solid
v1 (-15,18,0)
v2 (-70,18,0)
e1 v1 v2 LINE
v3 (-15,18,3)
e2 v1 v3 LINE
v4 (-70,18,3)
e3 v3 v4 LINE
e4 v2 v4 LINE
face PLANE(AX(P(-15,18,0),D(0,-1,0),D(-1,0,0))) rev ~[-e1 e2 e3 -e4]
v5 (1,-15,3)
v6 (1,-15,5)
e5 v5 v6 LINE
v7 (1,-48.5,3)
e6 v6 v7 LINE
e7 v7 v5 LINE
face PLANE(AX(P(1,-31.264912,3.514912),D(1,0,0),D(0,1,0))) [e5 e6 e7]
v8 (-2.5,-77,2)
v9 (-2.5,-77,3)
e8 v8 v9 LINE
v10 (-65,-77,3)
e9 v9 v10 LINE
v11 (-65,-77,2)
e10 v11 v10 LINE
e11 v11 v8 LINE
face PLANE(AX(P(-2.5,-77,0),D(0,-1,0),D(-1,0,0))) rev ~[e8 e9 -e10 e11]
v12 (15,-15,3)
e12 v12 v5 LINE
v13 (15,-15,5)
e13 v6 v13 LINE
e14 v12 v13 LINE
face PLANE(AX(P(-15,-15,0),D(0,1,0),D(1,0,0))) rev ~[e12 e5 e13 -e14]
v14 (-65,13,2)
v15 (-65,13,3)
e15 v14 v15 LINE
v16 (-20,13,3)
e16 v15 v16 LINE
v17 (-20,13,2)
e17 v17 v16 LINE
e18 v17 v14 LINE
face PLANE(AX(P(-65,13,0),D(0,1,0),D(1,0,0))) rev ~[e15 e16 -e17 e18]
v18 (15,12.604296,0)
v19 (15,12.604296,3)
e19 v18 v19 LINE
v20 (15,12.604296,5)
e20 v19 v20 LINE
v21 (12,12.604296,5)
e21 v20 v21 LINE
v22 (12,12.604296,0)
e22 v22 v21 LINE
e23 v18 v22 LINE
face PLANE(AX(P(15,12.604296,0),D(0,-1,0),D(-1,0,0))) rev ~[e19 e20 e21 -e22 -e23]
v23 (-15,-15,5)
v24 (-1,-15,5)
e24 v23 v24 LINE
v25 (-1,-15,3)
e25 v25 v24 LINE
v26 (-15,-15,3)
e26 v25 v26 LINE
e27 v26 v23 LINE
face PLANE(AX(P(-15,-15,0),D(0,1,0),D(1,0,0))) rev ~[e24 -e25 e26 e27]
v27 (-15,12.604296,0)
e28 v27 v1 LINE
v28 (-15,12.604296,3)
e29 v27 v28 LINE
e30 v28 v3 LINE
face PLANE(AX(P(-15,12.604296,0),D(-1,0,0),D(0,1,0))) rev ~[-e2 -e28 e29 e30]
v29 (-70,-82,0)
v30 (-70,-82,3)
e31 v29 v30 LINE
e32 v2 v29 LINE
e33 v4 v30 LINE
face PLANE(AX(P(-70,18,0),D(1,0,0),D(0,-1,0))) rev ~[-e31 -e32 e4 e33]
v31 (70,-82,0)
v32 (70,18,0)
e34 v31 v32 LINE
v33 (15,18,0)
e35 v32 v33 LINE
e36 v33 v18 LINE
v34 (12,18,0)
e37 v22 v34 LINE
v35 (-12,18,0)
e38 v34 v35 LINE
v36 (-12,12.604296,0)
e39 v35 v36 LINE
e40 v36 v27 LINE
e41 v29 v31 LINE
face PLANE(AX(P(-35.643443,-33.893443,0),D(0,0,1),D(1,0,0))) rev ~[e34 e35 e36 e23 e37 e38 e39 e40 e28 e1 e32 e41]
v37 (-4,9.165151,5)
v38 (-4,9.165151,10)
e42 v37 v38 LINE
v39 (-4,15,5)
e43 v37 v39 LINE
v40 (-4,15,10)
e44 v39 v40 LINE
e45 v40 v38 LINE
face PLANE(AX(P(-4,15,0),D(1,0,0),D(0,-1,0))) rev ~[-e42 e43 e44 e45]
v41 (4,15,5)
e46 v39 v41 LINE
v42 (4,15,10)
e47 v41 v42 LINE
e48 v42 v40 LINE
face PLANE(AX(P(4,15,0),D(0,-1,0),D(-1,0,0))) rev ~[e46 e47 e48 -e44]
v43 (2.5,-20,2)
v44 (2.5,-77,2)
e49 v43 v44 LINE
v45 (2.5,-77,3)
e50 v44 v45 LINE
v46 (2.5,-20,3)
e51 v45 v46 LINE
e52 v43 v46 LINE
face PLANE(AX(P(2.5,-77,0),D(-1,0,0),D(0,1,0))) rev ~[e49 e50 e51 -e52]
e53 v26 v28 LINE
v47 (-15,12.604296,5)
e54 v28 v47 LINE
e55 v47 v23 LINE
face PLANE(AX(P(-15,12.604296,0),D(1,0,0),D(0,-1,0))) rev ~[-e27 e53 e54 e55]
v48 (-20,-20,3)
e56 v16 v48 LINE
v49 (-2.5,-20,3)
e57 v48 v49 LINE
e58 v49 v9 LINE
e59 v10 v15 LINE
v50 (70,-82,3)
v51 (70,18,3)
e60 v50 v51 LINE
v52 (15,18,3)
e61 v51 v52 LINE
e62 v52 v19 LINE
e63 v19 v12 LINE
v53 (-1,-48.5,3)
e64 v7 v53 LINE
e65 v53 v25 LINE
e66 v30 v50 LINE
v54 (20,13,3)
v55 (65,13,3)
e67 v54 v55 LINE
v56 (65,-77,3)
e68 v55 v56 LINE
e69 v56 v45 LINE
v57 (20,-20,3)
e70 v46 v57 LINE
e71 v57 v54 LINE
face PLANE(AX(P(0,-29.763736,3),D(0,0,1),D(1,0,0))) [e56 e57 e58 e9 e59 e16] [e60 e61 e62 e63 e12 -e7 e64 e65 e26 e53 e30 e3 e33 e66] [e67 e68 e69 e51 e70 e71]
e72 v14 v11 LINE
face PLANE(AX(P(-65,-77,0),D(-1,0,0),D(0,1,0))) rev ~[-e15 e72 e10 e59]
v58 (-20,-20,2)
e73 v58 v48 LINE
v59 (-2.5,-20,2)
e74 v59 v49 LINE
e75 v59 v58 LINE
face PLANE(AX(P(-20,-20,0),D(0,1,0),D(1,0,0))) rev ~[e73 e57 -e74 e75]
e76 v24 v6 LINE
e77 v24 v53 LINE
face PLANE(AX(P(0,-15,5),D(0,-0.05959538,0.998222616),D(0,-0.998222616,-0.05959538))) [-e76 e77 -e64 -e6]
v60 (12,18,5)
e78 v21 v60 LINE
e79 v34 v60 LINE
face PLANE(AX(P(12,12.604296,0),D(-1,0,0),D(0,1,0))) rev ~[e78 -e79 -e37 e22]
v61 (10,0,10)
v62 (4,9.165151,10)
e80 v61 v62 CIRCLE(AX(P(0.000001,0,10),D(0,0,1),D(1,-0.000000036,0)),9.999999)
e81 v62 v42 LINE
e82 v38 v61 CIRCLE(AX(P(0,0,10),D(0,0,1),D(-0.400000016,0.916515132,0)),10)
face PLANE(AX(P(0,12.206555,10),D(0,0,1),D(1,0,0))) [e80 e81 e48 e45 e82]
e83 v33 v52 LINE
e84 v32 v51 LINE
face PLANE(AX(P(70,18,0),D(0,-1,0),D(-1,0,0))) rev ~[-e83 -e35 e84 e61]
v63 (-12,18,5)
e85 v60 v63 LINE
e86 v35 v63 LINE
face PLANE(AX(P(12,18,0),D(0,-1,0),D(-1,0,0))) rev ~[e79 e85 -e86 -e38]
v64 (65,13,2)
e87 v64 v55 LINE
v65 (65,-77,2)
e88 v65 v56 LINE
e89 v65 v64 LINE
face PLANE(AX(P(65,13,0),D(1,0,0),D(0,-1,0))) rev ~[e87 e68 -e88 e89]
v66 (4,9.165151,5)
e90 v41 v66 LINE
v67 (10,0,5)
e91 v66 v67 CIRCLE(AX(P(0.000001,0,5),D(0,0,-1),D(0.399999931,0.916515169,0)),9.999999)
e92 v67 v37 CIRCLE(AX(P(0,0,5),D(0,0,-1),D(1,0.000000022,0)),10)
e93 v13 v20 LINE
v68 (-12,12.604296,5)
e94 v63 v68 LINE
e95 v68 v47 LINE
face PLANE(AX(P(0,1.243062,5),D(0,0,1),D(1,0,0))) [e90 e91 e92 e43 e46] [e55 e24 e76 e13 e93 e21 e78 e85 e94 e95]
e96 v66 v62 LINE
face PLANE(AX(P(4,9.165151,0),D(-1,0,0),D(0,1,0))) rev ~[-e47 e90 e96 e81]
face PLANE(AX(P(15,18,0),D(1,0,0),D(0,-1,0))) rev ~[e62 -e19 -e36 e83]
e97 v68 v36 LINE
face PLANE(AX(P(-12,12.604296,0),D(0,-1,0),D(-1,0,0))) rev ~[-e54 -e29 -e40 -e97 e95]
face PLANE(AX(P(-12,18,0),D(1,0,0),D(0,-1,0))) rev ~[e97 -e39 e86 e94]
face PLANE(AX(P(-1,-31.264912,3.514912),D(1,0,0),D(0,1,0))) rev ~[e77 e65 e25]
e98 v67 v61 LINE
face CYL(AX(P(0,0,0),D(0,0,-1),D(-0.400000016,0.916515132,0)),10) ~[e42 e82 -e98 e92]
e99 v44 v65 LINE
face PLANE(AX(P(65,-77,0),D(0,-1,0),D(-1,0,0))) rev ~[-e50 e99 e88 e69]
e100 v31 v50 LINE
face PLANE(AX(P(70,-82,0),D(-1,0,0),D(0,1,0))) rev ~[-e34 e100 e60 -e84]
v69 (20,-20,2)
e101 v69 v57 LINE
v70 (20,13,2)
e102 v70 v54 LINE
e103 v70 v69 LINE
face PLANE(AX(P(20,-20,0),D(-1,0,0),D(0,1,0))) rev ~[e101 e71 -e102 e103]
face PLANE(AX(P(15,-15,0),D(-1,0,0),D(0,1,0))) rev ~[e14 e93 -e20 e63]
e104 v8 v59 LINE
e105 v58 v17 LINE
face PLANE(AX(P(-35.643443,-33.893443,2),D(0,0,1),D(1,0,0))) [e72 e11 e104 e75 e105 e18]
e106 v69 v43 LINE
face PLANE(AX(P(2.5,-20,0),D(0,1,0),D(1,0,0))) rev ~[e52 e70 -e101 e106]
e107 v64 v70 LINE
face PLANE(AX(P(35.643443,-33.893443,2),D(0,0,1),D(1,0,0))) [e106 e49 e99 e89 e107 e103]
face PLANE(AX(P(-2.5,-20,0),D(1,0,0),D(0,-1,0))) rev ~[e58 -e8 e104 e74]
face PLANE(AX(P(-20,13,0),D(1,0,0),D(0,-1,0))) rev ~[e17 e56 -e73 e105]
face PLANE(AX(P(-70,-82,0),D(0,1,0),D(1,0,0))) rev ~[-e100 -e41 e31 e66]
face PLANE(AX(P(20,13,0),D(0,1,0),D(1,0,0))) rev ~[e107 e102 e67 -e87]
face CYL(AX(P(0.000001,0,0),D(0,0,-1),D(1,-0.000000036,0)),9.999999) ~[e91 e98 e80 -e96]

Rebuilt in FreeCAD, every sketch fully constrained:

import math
import FreeCAD as App
import Part
import Sketcher

V = App.Vector
Q = App.Units.Quantity

doc = App.newDocument("Part")
params = doc.addObject("Spreadsheet::Sheet", "Params")
for row, (alias, value) in enumerate([
    ("sketch1_radius", "9.999999 mm"),
    ("sketch1_width", "3 mm"),
    ("sketch1_width2", "24 mm"),
    ("sketch1_width3", "55 mm"),
    ("sketch1_width4", "45 mm"),
    ("pad1_length", "3 mm"),
    ("sketch2_radius", "9.999999 mm"),
    ("sketch2_width", "30 mm"),
    ("sketch2_width2", "3 mm"),
    ("sketch2_width3", "8 mm"),
    ("pad2_length", "5 mm"),
    ("sketch3_radius", "10 mm"),
    ("sketch3_width", "8 mm"),
    ("pad3_length", "10 mm"),
    ("sketch4_height", "2 mm"),
    ("sketch4_width", "33.5 mm"),
    ("pad4_length", "2 mm"),
    ("sketch5_width", "45 mm"),
    ("sketch5_height", "90 mm"),
    ("sketch5_height2", "57 mm"),
    ("sketch5_width2", "62.5 mm"),
    ("pad5_length", "2 mm"),
], start=1):
    params.set(f"A{row}", alias)
    params.set(f"B{row}", "=" + value)
    params.setAlias(f"B{row}", alias)

body = doc.addObject("PartDesign::Body", "Body")

sketch1 = doc.addObject("Sketcher::SketchObject", "Sketch")
body.addObject(sketch1)
sketch1.AttachmentSupport = (doc.XY_Plane, [""])
sketch1.MapMode = "FlatFace"
sketch1.addGeometry([
    Part.LineSegment(V(15, 18, 0), V(15, 12.6, 0)),
    Part.LineSegment(V(15, 12.6, 0), V(12, 12.6, 0)),
    Part.LineSegment(V(12, 12.6, 0), V(12, 18, 0)),
    Part.LineSegment(V(12, 18, 0), V(-12, 18, 0)),
    Part.LineSegment(V(-12, 18, 0), V(-12, 12.6, 0)),
    Part.LineSegment(V(-12, 12.6, 0), V(-15, 12.6, 0)),
    Part.LineSegment(V(-15, 12.6, 0), V(-15, 18, 0)),
    Part.LineSegment(V(-15, 18, 0), V(-70, 18, 0)),
    Part.LineSegment(V(-70, 18, 0), V(-70, -82, 0)),
    Part.LineSegment(V(-70, -82, 0), V(70, -82, 0)),
    Part.LineSegment(V(70, -82, 0), V(70, 18, 0)),
    Part.LineSegment(V(70, 18, 0), V(15, 18, 0)),
    Part.LineSegment(V(-2.5, -20, 0), V(-2.5, -77, 0)),
    Part.LineSegment(V(-2.5, -77, 0), V(-65, -77, 0)),
    Part.LineSegment(V(-65, -77, 0), V(-65, 13, 0)),
    Part.LineSegment(V(-65, 13, 0), V(-20, 13, 0)),
    Part.LineSegment(V(-20, 13, 0), V(-20, -20, 0)),
    Part.LineSegment(V(-20, -20, 0), V(-2.5, -20, 0)),
    Part.LineSegment(V(2.5, -77, 0), V(2.5, -20, 0)),
    Part.LineSegment(V(2.5, -20, 0), V(20, -20, 0)),
    Part.LineSegment(V(20, -20, 0), V(20, 13, 0)),
    Part.LineSegment(V(20, 13, 0), V(65, 13, 0)),
    Part.LineSegment(V(65, 13, 0), V(65, -77, 0)),
    Part.LineSegment(V(65, -77, 0), V(2.5, -77, 0)),
    Part.LineSegment(V(4, 15, 0), V(4, 9.2, 0)),
    Part.ArcOfCircle(Part.Circle(V(0, 0, 0), V(0, 0, 1), 10), math.radians(0), math.radians(66)),
    Part.ArcOfCircle(Part.Circle(V(0, 0, 0), V(0, 0, 1), 10), math.radians(114), math.radians(360)),
    Part.LineSegment(V(-4, 9.2, 0), V(-4, 15, 0)),
    Part.LineSegment(V(-4, 15, 0), V(4, 15, 0)),
], False)
sketch1.addConstraint([
    Sketcher.Constraint("Coincident", 0, 2, 1, 1),
    Sketcher.Constraint("Coincident", 1, 2, 2, 1),
    Sketcher.Constraint("Coincident", 2, 2, 3, 1),
    Sketcher.Constraint("Coincident", 3, 2, 4, 1),
    Sketcher.Constraint("Coincident", 4, 2, 5, 1),
    Sketcher.Constraint("Coincident", 5, 2, 6, 1),
    Sketcher.Constraint("Coincident", 6, 2, 7, 1),
    Sketcher.Constraint("Coincident", 7, 2, 8, 1),
    Sketcher.Constraint("Coincident", 8, 2, 9, 1),
    Sketcher.Constraint("Coincident", 9, 2, 10, 1),
    Sketcher.Constraint("Coincident", 10, 2, 11, 1),
    Sketcher.Constraint("Coincident", 11, 2, 0, 1),
    Sketcher.Constraint("Coincident", 12, 2, 13, 1),
    Sketcher.Constraint("Coincident", 13, 2, 14, 1),
    Sketcher.Constraint("Coincident", 14, 2, 15, 1),
    Sketcher.Constraint("Coincident", 15, 2, 16, 1),
    Sketcher.Constraint("Coincident", 16, 2, 17, 1),
    Sketcher.Constraint("Coincident", 17, 2, 12, 1),
    Sketcher.Constraint("Coincident", 18, 2, 19, 1),
    Sketcher.Constraint("Coincident", 19, 2, 20, 1),
    Sketcher.Constraint("Coincident", 20, 2, 21, 1),
    Sketcher.Constraint("Coincident", 21, 2, 22, 1),
    Sketcher.Constraint("Coincident", 22, 2, 23, 1),
    Sketcher.Constraint("Coincident", 23, 2, 18, 1),
    Sketcher.Constraint("Coincident", 24, 2, 25, 2),
    Sketcher.Constraint("Tangent", 25, 1, 26, 2),
    Sketcher.Constraint("Coincident", 26, 1, 27, 1),
    Sketcher.Constraint("Coincident", 27, 2, 28, 1),
    Sketcher.Constraint("Coincident", 28, 2, 24, 1),
    Sketcher.Constraint("Vertical", 0),
    Sketcher.Constraint("Horizontal", 1),
    Sketcher.Constraint("Vertical", 2),
    Sketcher.Constraint("Horizontal", 3),
    Sketcher.Constraint("Vertical", 4),
    Sketcher.Constraint("Horizontal", 5),
    Sketcher.Constraint("Vertical", 6),
    Sketcher.Constraint("Horizontal", 7),
    Sketcher.Constraint("Vertical", 8),
    Sketcher.Constraint("Horizontal", 9),
    Sketcher.Constraint("Vertical", 10),
    Sketcher.Constraint("Horizontal", 11),
    Sketcher.Constraint("Vertical", 12),
    Sketcher.Constraint("Horizontal", 13),
    Sketcher.Constraint("Vertical", 14),
    Sketcher.Constraint("Horizontal", 15),
    Sketcher.Constraint("Vertical", 16),
    Sketcher.Constraint("Horizontal", 17),
    Sketcher.Constraint("Vertical", 18),
    Sketcher.Constraint("Horizontal", 19),
    Sketcher.Constraint("Vertical", 20),
    Sketcher.Constraint("Horizontal", 21),
    Sketcher.Constraint("Vertical", 22),
    Sketcher.Constraint("Horizontal", 23),
    Sketcher.Constraint("Vertical", 24),
    Sketcher.Constraint("Vertical", 27),
    Sketcher.Constraint("Horizontal", 28),
    Sketcher.Constraint("Coincident", 25, 3, -1, 1),
    Sketcher.Constraint("Equal", 25, 26),
    Sketcher.Constraint("Symmetric", 1, 2, 4, 2, -2),
    Sketcher.Constraint("Symmetric", 7, 2, 10, 2, -2),
    Sketcher.Constraint("Symmetric", 17, 2, 18, 2, -2),
    Sketcher.Constraint("Symmetric", 15, 2, 20, 2, -2),
    Sketcher.Constraint("Symmetric", 13, 2, 22, 2, -2),
    Sketcher.Constraint("PointOnObject", 25, 1, -1),
    Sketcher.Constraint("Horizontal", 3, 2, 6, 2),
    Sketcher.Constraint("Horizontal", 24, 2, 26, 1),
    Sketcher.Constraint("Equal", 1, 5),
    Sketcher.Constraint("Radius", 25, Q("9.999999 mm")),
    Sketcher.Constraint("DistanceX", 1, 2, 1, 1, Q("3 mm")),
    Sketcher.Constraint("DistanceX", 3, 2, 3, 1, Q("24 mm")),
    Sketcher.Constraint("DistanceX", 7, 2, 7, 1, Q("55 mm")),
    Sketcher.Constraint("DistanceX", 15, 1, 15, 2, Q("45 mm")),
    Sketcher.Constraint("DistanceX", 28, 1, 28, 2, Q("8 mm")),
    Sketcher.Constraint("DistanceY", 8, 2, 8, 1, Q("100 mm")),
    Sketcher.Constraint("DistanceY", 12, 2, 12, 1, Q("57 mm")),
    Sketcher.Constraint("DistanceY", 14, 1, 14, 2, Q("90 mm")),
    Sketcher.Constraint("DistanceX", 13, 2, 13, 1, Q("62.5 mm")),
    Sketcher.Constraint("DistanceY", -1, 1, 2, 2, Q("18 mm")),
    Sketcher.Constraint("DistanceY", 12, 2, -1, 1, Q("77 mm")),
    Sketcher.Constraint("DistanceX", 13, 2, -1, 1, Q("65 mm")),
    Sketcher.Constraint("DistanceY", -1, 1, 27, 2, Q("15 mm")),
    Sketcher.Constraint("DistanceY", 0, 2, 0, 1, Q("5.395704 mm")),
])
sketch1.setExpression("Constraints[67]", "Params.sketch1_radius")
sketch1.setExpression("Constraints[68]", "Params.sketch1_width")
sketch1.setExpression("Constraints[69]", "Params.sketch1_width2")
sketch1.setExpression("Constraints[70]", "Params.sketch1_width3")
sketch1.setExpression("Constraints[71]", "Params.sketch1_width4")
pad1 = doc.addObject("PartDesign::Pad", "Pad")
body.addObject(pad1)
pad1.Profile = sketch1
pad1.setExpression("Length", "Params.pad1_length")

sketch2 = doc.addObject("Sketcher::SketchObject", "Sketch001")
body.addObject(sketch2)
sketch2.AttachmentSupport = (doc.XY_Plane, [""])
sketch2.MapMode = "FlatFace"
sketch2.addGeometry([
    Part.LineSegment(V(-15, 12.6, 0), V(-15, -15, 0)),
    Part.LineSegment(V(-15, -15, 0), V(15, -15, 0)),
    Part.LineSegment(V(15, -15, 0), V(15, 12.6, 0)),
    Part.LineSegment(V(15, 12.6, 0), V(12, 12.6, 0)),
    Part.LineSegment(V(12, 12.6, 0), V(12, 18, 0)),
    Part.LineSegment(V(12, 18, 0), V(-12, 18, 0)),
    Part.LineSegment(V(-12, 18, 0), V(-12, 12.6, 0)),
    Part.LineSegment(V(-12, 12.6, 0), V(-15, 12.6, 0)),
    Part.LineSegment(V(4, 15, 0), V(4, 9.2, 0)),
    Part.ArcOfCircle(Part.Circle(V(0, 0, 0), V(0, 0, 1), 10), math.radians(0), math.radians(66)),
    Part.ArcOfCircle(Part.Circle(V(0, 0, 0), V(0, 0, 1), 10), math.radians(114), math.radians(360)),
    Part.LineSegment(V(-4, 9.2, 0), V(-4, 15, 0)),
    Part.LineSegment(V(-4, 15, 0), V(4, 15, 0)),
], False)
sketch2.addConstraint([
    Sketcher.Constraint("Coincident", 0, 2, 1, 1),
    Sketcher.Constraint("Coincident", 1, 2, 2, 1),
    Sketcher.Constraint("Coincident", 2, 2, 3, 1),
    Sketcher.Constraint("Coincident", 3, 2, 4, 1),
    Sketcher.Constraint("Coincident", 4, 2, 5, 1),
    Sketcher.Constraint("Coincident", 5, 2, 6, 1),
    Sketcher.Constraint("Coincident", 6, 2, 7, 1),
    Sketcher.Constraint("Coincident", 7, 2, 0, 1),
    Sketcher.Constraint("Coincident", 8, 2, 9, 2),
    Sketcher.Constraint("Tangent", 9, 1, 10, 2),
    Sketcher.Constraint("Coincident", 10, 1, 11, 1),
    Sketcher.Constraint("Coincident", 11, 2, 12, 1),
    Sketcher.Constraint("Coincident", 12, 2, 8, 1),
    Sketcher.Constraint("Vertical", 0),
    Sketcher.Constraint("Horizontal", 1),
    Sketcher.Constraint("Vertical", 2),
    Sketcher.Constraint("Horizontal", 3),
    Sketcher.Constraint("Vertical", 4),
    Sketcher.Constraint("Horizontal", 5),
    Sketcher.Constraint("Vertical", 6),
    Sketcher.Constraint("Horizontal", 7),
    Sketcher.Constraint("Vertical", 8),
    Sketcher.Constraint("Vertical", 11),
    Sketcher.Constraint("Horizontal", 12),
    Sketcher.Constraint("Coincident", 9, 3, -1, 1),
    Sketcher.Constraint("Equal", 9, 10),
    Sketcher.Constraint("Symmetric", 3, 2, 6, 2, -2),
    Sketcher.Constraint("PointOnObject", 9, 1, -1),
    Sketcher.Constraint("Horizontal", 8, 2, 10, 1),
    Sketcher.Constraint("Equal", 3, 7),
    Sketcher.Constraint("Radius", 9, Q("9.999999 mm")),
    Sketcher.Constraint("DistanceX", 1, 1, 1, 2, Q("30 mm")),
    Sketcher.Constraint("DistanceX", 3, 2, 3, 1, Q("3 mm")),
    Sketcher.Constraint("DistanceX", 12, 1, 12, 2, Q("8 mm")),
    Sketcher.Constraint("DistanceY", 0, 2, -1, 1, Q("15 mm")),
    Sketcher.Constraint("DistanceY", -1, 1, 4, 2, Q("18 mm")),
    Sketcher.Constraint("DistanceY", -1, 1, 11, 2, Q("15 mm")),
    Sketcher.Constraint("DistanceY", 0, 2, 0, 1, Q("27.604296 mm")),
])
sketch2.setExpression("Constraints[30]", "Params.sketch2_radius")
sketch2.setExpression("Constraints[31]", "Params.sketch2_width")
sketch2.setExpression("Constraints[32]", "Params.sketch2_width2")
sketch2.setExpression("Constraints[33]", "Params.sketch2_width3")
pad2 = doc.addObject("PartDesign::Pad", "Pad001")
body.addObject(pad2)
pad2.Profile = sketch2
pad2.setExpression("Length", "Params.pad2_length")

sketch3 = doc.addObject("Sketcher::SketchObject", "Sketch002")
body.addObject(sketch3)
sketch3.AttachmentSupport = (doc.XY_Plane, [""])
sketch3.MapMode = "FlatFace"
sketch3.addGeometry([
    Part.LineSegment(V(4, 15, 0), V(-4, 15, 0)),
    Part.LineSegment(V(-4, 15, 0), V(-4, 9, 0)),
    Part.ArcOfCircle(Part.Circle(V(0, 0, 0), V(0, 0, 1), 10), math.radians(114), math.radians(360)),
    Part.ArcOfCircle(Part.Circle(V(0, 0, 0), V(0, 0, 1), 10), math.radians(0), math.radians(66)),
    Part.LineSegment(V(4, 9, 0), V(4, 15, 0)),
], False)
sketch3.addConstraint([
    Sketcher.Constraint("Coincident", 0, 2, 1, 1),
    Sketcher.Constraint("Coincident", 1, 2, 2, 1),
    Sketcher.Constraint("Tangent", 2, 2, 3, 1),
    Sketcher.Constraint("Coincident", 3, 2, 4, 1),
    Sketcher.Constraint("Coincident", 4, 2, 0, 1),
    Sketcher.Constraint("Horizontal", 0),
    Sketcher.Constraint("Vertical", 1),
    Sketcher.Constraint("Vertical", 4),
    Sketcher.Constraint("Coincident", 2, 3, -1, 1),
    Sketcher.Constraint("Equal", 2, 3),
    Sketcher.Constraint("PointOnObject", 2, 2, -1),
    Sketcher.Constraint("Horizontal", 1, 2, 3, 2),
    Sketcher.Constraint("Radius", 2, Q("10 mm")),
    Sketcher.Constraint("DistanceX", 0, 2, 0, 1, Q("8 mm")),
    Sketcher.Constraint("DistanceY", -1, 1, 0, 2, Q("15 mm")),
])
sketch3.setExpression("Constraints[12]", "Params.sketch3_radius")
sketch3.setExpression("Constraints[13]", "Params.sketch3_width")
pad3 = doc.addObject("PartDesign::Pad", "Pad002")
body.addObject(pad3)
pad3.Profile = sketch3
pad3.setExpression("Length", "Params.pad3_length")

sketch4 = doc.addObject("Sketcher::SketchObject", "Sketch003")
body.addObject(sketch4)
sketch4.AttachmentSupport = (doc.YZ_Plane, [""])
sketch4.MapMode = "FlatFace"
sketch4.addGeometry([
    Part.LineSegment(V(-15, 3, 0), V(-15, 5, 0)),
    Part.LineSegment(V(-15, 5, 0), V(-48.5, 3, 0)),
    Part.LineSegment(V(-48.5, 3, 0), V(-15, 3, 0)),
], False)
sketch4.addConstraint([
    Sketcher.Constraint("Coincident", 0, 2, 1, 1),
    Sketcher.Constraint("Coincident", 1, 2, 2, 1),
    Sketcher.Constraint("Coincident", 2, 2, 0, 1),
    Sketcher.Constraint("Vertical", 0),
    Sketcher.Constraint("Horizontal", 2),
    Sketcher.Constraint("DistanceY", 0, 1, 0, 2, Q("2 mm")),
    Sketcher.Constraint("DistanceX", 2, 1, 2, 2, Q("33.5 mm")),
    Sketcher.Constraint("DistanceX", 0, 2, -1, 1, Q("15 mm")),
    Sketcher.Constraint("DistanceY", -1, 1, 0, 2, Q("5 mm")),
])
sketch4.setExpression("Constraints[5]", "Params.sketch4_height")
sketch4.setExpression("Constraints[6]", "Params.sketch4_width")
pad4 = doc.addObject("PartDesign::Pad", "Pad003")
body.addObject(pad4)
pad4.Profile = sketch4
pad4.setExpression("Length", "Params.pad4_length")
pad4.Midplane = True

sketch5 = doc.addObject("Sketcher::SketchObject", "Sketch004")
body.addObject(sketch5)
sketch5.AttachmentSupport = (doc.XY_Plane, [""])
sketch5.MapMode = "FlatFace"
sketch5.addGeometry([
    Part.LineSegment(V(-65, 13, 0), V(-65, -77, 0)),
    Part.LineSegment(V(-65, -77, 0), V(-2, -77, 0)),
    Part.LineSegment(V(-2, -77, 0), V(-2, -20, 0)),
    Part.LineSegment(V(-2, -20, 0), V(-20, -20, 0)),
    Part.LineSegment(V(-20, -20, 0), V(-20, 13, 0)),
    Part.LineSegment(V(-20, 13, 0), V(-65, 13, 0)),
    Part.LineSegment(V(20, 13, 0), V(20, -20, 0)),
    Part.LineSegment(V(20, -20, 0), V(2, -20, 0)),
    Part.LineSegment(V(2, -20, 0), V(2, -77, 0)),
    Part.LineSegment(V(2, -77, 0), V(65, -77, 0)),
    Part.LineSegment(V(65, -77, 0), V(65, 13, 0)),
    Part.LineSegment(V(65, 13, 0), V(20, 13, 0)),
], False)
sketch5.addConstraint([
    Sketcher.Constraint("Coincident", 0, 2, 1, 1),
    Sketcher.Constraint("Coincident", 1, 2, 2, 1),
    Sketcher.Constraint("Coincident", 2, 2, 3, 1),
    Sketcher.Constraint("Coincident", 3, 2, 4, 1),
    Sketcher.Constraint("Coincident", 4, 2, 5, 1),
    Sketcher.Constraint("Coincident", 5, 2, 0, 1),
    Sketcher.Constraint("Coincident", 6, 2, 7, 1),
    Sketcher.Constraint("Coincident", 7, 2, 8, 1),
    Sketcher.Constraint("Coincident", 8, 2, 9, 1),
    Sketcher.Constraint("Coincident", 9, 2, 10, 1),
    Sketcher.Constraint("Coincident", 10, 2, 11, 1),
    Sketcher.Constraint("Coincident", 11, 2, 6, 1),
    Sketcher.Constraint("Vertical", 0),
    Sketcher.Constraint("Horizontal", 1),
    Sketcher.Constraint("Vertical", 2),
    Sketcher.Constraint("Horizontal", 3),
    Sketcher.Constraint("Vertical", 4),
    Sketcher.Constraint("Horizontal", 5),
    Sketcher.Constraint("Vertical", 6),
    Sketcher.Constraint("Horizontal", 7),
    Sketcher.Constraint("Vertical", 8),
    Sketcher.Constraint("Horizontal", 9),
    Sketcher.Constraint("Vertical", 10),
    Sketcher.Constraint("Horizontal", 11),
    Sketcher.Constraint("Symmetric", 3, 2, 6, 2, -2),
    Sketcher.Constraint("Symmetric", 1, 2, 8, 2, -2),
    Sketcher.Constraint("Symmetric", 5, 2, 10, 2, -2),
    Sketcher.Constraint("DistanceX", 5, 2, 5, 1, Q("45 mm")),
    Sketcher.Constraint("DistanceY", 0, 2, 0, 1, Q("90 mm")),
    Sketcher.Constraint("DistanceY", 2, 1, 2, 2, Q("57 mm")),
    Sketcher.Constraint("DistanceX", 1, 1, 1, 2, Q("62.5 mm")),
    Sketcher.Constraint("DistanceX", 0, 2, -1, 1, Q("65 mm")),
    Sketcher.Constraint("DistanceY", 0, 2, -1, 1, Q("77 mm")),
])
sketch5.setExpression("Constraints[27]", "Params.sketch5_width")
sketch5.setExpression("Constraints[28]", "Params.sketch5_height")
sketch5.setExpression("Constraints[29]", "Params.sketch5_height2")
sketch5.setExpression("Constraints[30]", "Params.sketch5_width2")
pad5 = doc.addObject("PartDesign::Pad", "Pad004")
body.addObject(pad5)
pad5.Profile = sketch5
pad5.setExpression("Length", "Params.pad5_length")

doc.recompute()
